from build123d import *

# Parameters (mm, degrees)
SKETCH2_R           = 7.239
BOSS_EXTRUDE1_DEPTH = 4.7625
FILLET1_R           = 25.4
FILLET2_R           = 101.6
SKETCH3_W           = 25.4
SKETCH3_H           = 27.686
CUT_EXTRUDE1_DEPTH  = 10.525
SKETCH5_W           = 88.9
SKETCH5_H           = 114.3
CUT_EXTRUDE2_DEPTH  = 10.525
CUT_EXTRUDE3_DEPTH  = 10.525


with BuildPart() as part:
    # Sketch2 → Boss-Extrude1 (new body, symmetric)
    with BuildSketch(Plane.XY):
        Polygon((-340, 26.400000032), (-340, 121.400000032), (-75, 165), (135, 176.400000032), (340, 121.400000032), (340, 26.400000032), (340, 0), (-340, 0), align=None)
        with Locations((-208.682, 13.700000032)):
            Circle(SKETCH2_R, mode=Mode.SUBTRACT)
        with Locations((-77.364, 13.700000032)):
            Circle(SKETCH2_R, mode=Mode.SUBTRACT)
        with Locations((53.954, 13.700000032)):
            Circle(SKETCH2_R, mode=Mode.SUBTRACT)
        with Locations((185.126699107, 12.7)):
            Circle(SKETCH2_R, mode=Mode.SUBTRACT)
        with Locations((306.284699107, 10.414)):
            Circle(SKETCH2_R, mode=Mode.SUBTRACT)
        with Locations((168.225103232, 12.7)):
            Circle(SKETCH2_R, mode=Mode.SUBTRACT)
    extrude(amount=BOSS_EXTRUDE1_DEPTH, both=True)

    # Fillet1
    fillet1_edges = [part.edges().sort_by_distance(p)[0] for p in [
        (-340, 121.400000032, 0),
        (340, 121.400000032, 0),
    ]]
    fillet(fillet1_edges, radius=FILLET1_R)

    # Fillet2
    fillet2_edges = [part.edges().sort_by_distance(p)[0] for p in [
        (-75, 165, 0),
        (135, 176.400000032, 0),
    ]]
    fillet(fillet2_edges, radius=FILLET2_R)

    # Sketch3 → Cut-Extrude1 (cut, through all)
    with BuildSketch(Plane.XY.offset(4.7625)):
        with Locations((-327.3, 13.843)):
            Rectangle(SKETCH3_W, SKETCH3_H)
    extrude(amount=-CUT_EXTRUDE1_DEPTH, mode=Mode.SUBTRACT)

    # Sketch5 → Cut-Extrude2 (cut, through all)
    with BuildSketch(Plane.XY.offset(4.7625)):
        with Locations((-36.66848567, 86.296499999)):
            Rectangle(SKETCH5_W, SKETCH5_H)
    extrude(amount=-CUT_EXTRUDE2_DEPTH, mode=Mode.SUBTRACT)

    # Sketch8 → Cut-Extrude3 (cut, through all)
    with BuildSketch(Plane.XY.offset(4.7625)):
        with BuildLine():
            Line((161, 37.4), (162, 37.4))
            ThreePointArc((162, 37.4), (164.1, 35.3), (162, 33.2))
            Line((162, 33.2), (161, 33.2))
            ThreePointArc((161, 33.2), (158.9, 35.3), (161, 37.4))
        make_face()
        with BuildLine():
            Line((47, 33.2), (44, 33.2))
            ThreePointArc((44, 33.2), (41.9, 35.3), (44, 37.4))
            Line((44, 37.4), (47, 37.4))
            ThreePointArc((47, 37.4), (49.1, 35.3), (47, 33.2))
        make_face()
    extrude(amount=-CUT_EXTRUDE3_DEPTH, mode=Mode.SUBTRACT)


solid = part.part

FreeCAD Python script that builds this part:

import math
import FreeCAD as App
import Part
import Sketcher
from FreeCAD import Vector
Q = App.Units.Quantity


def edges_at(feature, points):
    """Names of the edges that pass closest to the given points."""
    edges = feature.Shape.Edges
    near = lambda p: min(range(len(edges)), key=lambda i: edges[i].distToShape(Part.Vertex(*p))[0])
    return sorted({f"Edge{near(p) + 1}" for p in points})

doc = App.newDocument("Part")
body = doc.addObject("PartDesign::Body", "Body")

sketch1 = body.newObject("Sketcher::SketchObject", "Sketch")
sketch1.AttachmentSupport = (doc.getObject("XY_Plane"), [""])
sketch1.MapMode = "FlatFace"
sketch1.addGeometry(Part.LineSegment(Vector(-340, 121, 0), Vector(-340, 0, 0)), False)
sketch1.addGeometry(Part.LineSegment(Vector(-340, 0, 0), Vector(340, 0, 0)), False)
sketch1.addGeometry(Part.LineSegment(Vector(340, 0, 0), Vector(340, 121, 0)), False)
sketch1.addGeometry(Part.LineSegment(Vector(340, 121, 0), Vector(135, 176, 0)), False)
sketch1.addGeometry(Part.LineSegment(Vector(135, 176, 0), Vector(-75, 165, 0)), False)
sketch1.addGeometry(Part.LineSegment(Vector(-75, 165, 0), Vector(-340, 121, 0)), False)
sketch1.addGeometry(Part.Circle(Vector(306, 10, 0), Vector(0, 0, 1), 7), False)
sketch1.addGeometry(Part.Circle(Vector(185, 13, 0), Vector(0, 0, 1), 7), False)
sketch1.addGeometry(Part.Circle(Vector(168, 13, 0), Vector(0, 0, 1), 7), False)
sketch1.addGeometry(Part.Circle(Vector(54, 14, 0), Vector(0, 0, 1), 7), False)
sketch1.addGeometry(Part.Circle(Vector(-77, 14, 0), Vector(0, 0, 1), 7), False)
sketch1.addGeometry(Part.Circle(Vector(-209, 14, 0), Vector(0, 0, 1), 7), False)
sketch1.addConstraint(Sketcher.Constraint("Coincident", 0, 2, 1, 1))
sketch1.addConstraint(Sketcher.Constraint("Coincident", 1, 2, 2, 1))
sketch1.addConstraint(Sketcher.Constraint("Coincident", 2, 2, 3, 1))
sketch1.addConstraint(Sketcher.Constraint("Coincident", 3, 2, 4, 1))
sketch1.addConstraint(Sketcher.Constraint("Coincident", 4, 2, 5, 1))
sketch1.addConstraint(Sketcher.Constraint("Coincident", 5, 2, 0, 1))
sketch1.addConstraint(Sketcher.Constraint("Vertical", 0))
sketch1.addConstraint(Sketcher.Constraint("Horizontal", 1))
sketch1.addConstraint(Sketcher.Constraint("Vertical", 2))
sketch1.addConstraint(Sketcher.Constraint("Equal", 6, 7))
sketch1.addConstraint(Sketcher.Constraint("Equal", 7, 8))
sketch1.addConstraint(Sketcher.Constraint("Equal", 8, 9))
sketch1.addConstraint(Sketcher.Constraint("Equal", 9, 10))
sketch1.addConstraint(Sketcher.Constraint("Equal", 10, 11))
sketch1.addConstraint(Sketcher.Constraint("Symmetric", 0, 2, 1, 2, -1, 1))
sketch1.addConstraint(Sketcher.Constraint("Horizontal", 7, 3, 8, 3))
sketch1.addConstraint(Sketcher.Constraint("Horizontal", 9, 3, 10, 3))
sketch1.addConstraint(Sketcher.Constraint("Horizontal", 10, 3, 11, 3))
sketch1.addConstraint(Sketcher.Constraint("Horizontal", 2, 2, 5, 2))
sketch1.addConstraint(Sketcher.Constraint("Diameter", 6, Q("0.57 in")))
sketch1.addConstraint(Sketcher.Constraint("DistanceY", -1, 1, 7, 3, Q("0.5 in")))
sketch1.addConstraint(Sketcher.Constraint("DistanceY", -1, 1, 6, 3, Q("0.41 in")))
sketch1.addConstraint(Sketcher.Constraint("DistanceX", 7, 3, 6, 3, Q("4.77 in")))
sketch1.addConstraint(Sketcher.Constraint("DistanceX", 10, 3, 9, 3, Q("5.17 in")))
sketch1.addConstraint(Sketcher.Constraint("DistanceX", 11, 3, 10, 3, Q("5.17 in")))
sketch1.addConstraint(Sketcher.Constraint("DistanceX", 0, 2, 11, 3, Q("5.17 in")))
sketch1.addConstraint(Sketcher.Constraint("DistanceX", 1, 1, 1, 2, 680.0))
sketch1.addConstraint(Sketcher.Constraint("DistanceY", 0, 2, 0, 1, 121.4))
sketch1.addConstraint(Sketcher.Constraint("Distance", 4, 210.309201))
sketch1.addConstraint(Sketcher.Constraint("DistanceX", -1, 1, 6, 3, 306.284699))
sketch1.addConstraint(Sketcher.Constraint("DistanceY", -1, 1, 9, 3, 13.7))
sketch1.addConstraint(Sketcher.Constraint("DistanceX", -1, 1, 3, 2, 135.0))
sketch1.addConstraint(Sketcher.Constraint("DistanceY", -1, 1, 3, 2, 176.4))
sketch1.addConstraint(Sketcher.Constraint("DistanceX", 4, 2, -1, 1, 75.0))
sketch1.addConstraint(Sketcher.Constraint("DistanceX", -1, 1, 8, 3, 168.225103))
pad1 = body.newObject("PartDesign::Pad", "Pad")
pad1.Profile = sketch1
pad1.Length = Q("0.375 in")
pad1.Midplane = True
doc.recompute()

fillet = body.newObject("PartDesign::Fillet", "Fillet")
fillet.Base = (pad1, edges_at(pad1, [(-340, 121.4, 0), (340, 121.4, 0)]))
fillet.Radius = Q("1 in")
doc.recompute()

fillet2 = body.newObject("PartDesign::Fillet", "Fillet001")
fillet2.Base = (fillet, edges_at(fillet, [(-75, 165, 0), (135, 176.4, 0)]))
fillet2.Radius = Q("4 in")

sketch2 = body.newObject("Sketcher::SketchObject", "Sketch001")
sketch2.AttachmentSupport = (doc.getObject("XY_Plane"), [""])
sketch2.MapMode = "FlatFace"
sketch2.AttachmentOffset = App.Placement(Vector(0, 0, 0.1875 * 25.4), App.Rotation())
sketch2.addGeometry(Part.LineSegment(Vector(-340, 28, 0), Vector(-340, 0, 0)), False)
sketch2.addGeometry(Part.LineSegment(Vector(-340, 0, 0), Vector(-315, 0, 0)), False)
sketch2.addGeometry(Part.LineSegment(Vector(-315, 0, 0), Vector(-315, 28, 0)), False)
sketch2.addGeometry(Part.LineSegment(Vector(-315, 28, 0), Vector(-340, 28, 0)), False)
sketch2.addConstraint(Sketcher.Constraint("Coincident", 0, 2, 1, 1))
sketch2.addConstraint(Sketcher.Constraint("Coincident", 1, 2, 2, 1))
sketch2.addConstraint(Sketcher.Constraint("Coincident", 2, 2, 3, 1))
sketch2.addConstraint(Sketcher.Constraint("Coincident", 3, 2, 0, 1))
sketch2.addConstraint(Sketcher.Constraint("Vertical", 0))
sketch2.addConstraint(Sketcher.Constraint("Horizontal", 1))
sketch2.addConstraint(Sketcher.Constraint("Vertical", 2))
sketch2.addConstraint(Sketcher.Constraint("Horizontal", 3))
sketch2.addConstraint(Sketcher.Constraint("PointOnObject", 0, 2, -1))
sketch2.addConstraint(Sketcher.Constraint("DistanceX", 1, 1, 1, 2, Q("1 in")))
sketch2.addConstraint(Sketcher.Constraint("DistanceY", 0, 2, 0, 1, Q("1.09 in")))
sketch2.addConstraint(Sketcher.Constraint("DistanceX", 0, 2, -1, 1, 340.0))
pocket1 = body.newObject("PartDesign::Pocket", "Pocket")
pocket1.Profile = sketch2
pocket1.Type = "ThroughAll"

sketch3 = body.newObject("Sketcher::SketchObject", "Sketch002")
sketch3.AttachmentSupport = (doc.getObject("XY_Plane"), [""])
sketch3.MapMode = "FlatFace"
sketch3.AttachmentOffset = App.Placement(Vector(0, 0, 0.1875 * 25.4), App.Rotation())
sketch3.addGeometry(Part.LineSegment(Vector(-81, 143, 0), Vector(-81, 29, 0)), False)
sketch3.addGeometry(Part.LineSegment(Vector(-81, 29, 0), Vector(8, 29, 0)), False)
sketch3.addGeometry(Part.LineSegment(Vector(8, 29, 0), Vector(8, 143, 0)), False)
sketch3.addGeometry(Part.LineSegment(Vector(8, 143, 0), Vector(-81, 143, 0)), False)
sketch3.addConstraint(Sketcher.Constraint("Coincident", 0, 2, 1, 1))
sketch3.addConstraint(Sketcher.Constraint("Coincident", 1, 2, 2, 1))
sketch3.addConstraint(Sketcher.Constraint("Coincident", 2, 2, 3, 1))
sketch3.addConstraint(Sketcher.Constraint("Coincident", 3, 2, 0, 1))
sketch3.addConstraint(Sketcher.Constraint("Vertical", 0))
sketch3.addConstraint(Sketcher.Constraint("Horizontal", 1))
sketch3.addConstraint(Sketcher.Constraint("Vertical", 2))
sketch3.addConstraint(Sketcher.Constraint("Horizontal", 3))
sketch3.addConstraint(Sketcher.Constraint("DistanceX", 1, 1, 1, 2, Q("3.5 in")))
sketch3.addConstraint(Sketcher.Constraint("DistanceY", 0, 2, 0, 1, Q("4.5 in")))
sketch3.addConstraint(Sketcher.Constraint("DistanceY", -1, 1, 0, 2, Q("1.1475 in")))
sketch3.addConstraint(Sketcher.Constraint("DistanceX", 0, 2, -1, 1, 81.118486))
pocket2 = body.newObject("PartDesign::Pocket", "Pocket001")
pocket2.Profile = sketch3
pocket2.Type = "ThroughAll"

sketch4 = body.newObject("Sketcher::SketchObject", "Sketch003")
sketch4.AttachmentSupport = (doc.getObject("XY_Plane"), [""])
sketch4.MapMode = "FlatFace"
sketch4.AttachmentOffset = App.Placement(Vector(0, 0, 0.1875 * 25.4), App.Rotation())
sketch4.addGeometry(Part.LineSegment(Vector(162, 37.4, 0), Vector(161, 37.4, 0)), False)
sketch4.addGeometry(Part.ArcOfCircle(Part.Circle(Vector(161, 35.3, 0), Vector(0, 0, 1), 2.1), math.radians(90), math.radians(270)), False)
sketch4.addGeometry(Part.LineSegment(Vector(161, 33.2, 0), Vector(162, 33.2, 0)), False)
sketch4.addGeometry(Part.ArcOfCircle(Part.Circle(Vector(162, 35.3, 0), Vector(0, 0, 1), 2.1), math.radians(-90), math.radians(90)), False)
sketch4.addGeometry(Part.LineSegment(Vector(44, 33.2, 0), Vector(47, 33.2, 0)), False)
sketch4.addGeometry(Part.ArcOfCircle(Part.Circle(Vector(47, 35.3, 0), Vector(0, 0, 1), 2.1), math.radians(-90), math.radians(90)), False)
sketch4.addGeometry(Part.LineSegment(Vector(47, 37.4, 0), Vector(44, 37.4, 0)), False)
sketch4.addGeometry(Part.ArcOfCircle(Part.Circle(Vector(44, 35.3, 0), Vector(0, 0, 1), 2.1), math.radians(90), math.radians(270)), False)
sketch4.addConstraint(Sketcher.Constraint("Tangent", 0, 2, 1, 1))
sketch4.addConstraint(Sketcher.Constraint("Tangent", 1, 2, 2, 1))
sketch4.addConstraint(Sketcher.Constraint("Tangent", 2, 2, 3, 1))
sketch4.addConstraint(Sketcher.Constraint("Tangent", 3, 2, 0, 1))
sketch4.addConstraint(Sketcher.Constraint("Tangent", 4, 2, 5, 1))
sketch4.addConstraint(Sketcher.Constraint("Tangent", 5, 2, 6, 1))
sketch4.addConstraint(Sketcher.Constraint("Tangent", 6, 2, 7, 1))
sketch4.addConstraint(Sketcher.Constraint("Tangent", 7, 2, 4, 1))
sketch4.addConstraint(Sketcher.Constraint("Horizontal", 0))
sketch4.addConstraint(Sketcher.Constraint("Horizontal", 2))
sketch4.addConstraint(Sketcher.Constraint("Horizontal", 4))
sketch4.addConstraint(Sketcher.Constraint("Horizontal", 6))
sketch4.addConstraint(Sketcher.Constraint("Equal", 3, 5))
sketch4.addConstraint(Sketcher.Constraint("Horizontal", 3, 3, 5, 3))
sketch4.addConstraint(Sketcher.Constraint("Radius", 1, 2.1))
sketch4.addConstraint(Sketcher.Constraint("DistanceX", 0, 2, 0, 1, 1.0))
sketch4.addConstraint(Sketcher.Constraint("DistanceX", 4, 1, 4, 2, 3.0))
sketch4.addConstraint(Sketcher.Constraint("DistanceX", -1, 1, 1, 3, 161.0))
sketch4.addConstraint(Sketcher.Constraint("DistanceY", -1, 1, 1, 3, 35.3))
sketch4.addConstraint(Sketcher.Constraint("DistanceX", -1, 1, 5, 3, 47.0))
pocket3 = body.newObject("PartDesign::Pocket", "Pocket002")
pocket3.Profile = sketch4
pocket3.Type = "ThroughAll"

doc.recompute()
